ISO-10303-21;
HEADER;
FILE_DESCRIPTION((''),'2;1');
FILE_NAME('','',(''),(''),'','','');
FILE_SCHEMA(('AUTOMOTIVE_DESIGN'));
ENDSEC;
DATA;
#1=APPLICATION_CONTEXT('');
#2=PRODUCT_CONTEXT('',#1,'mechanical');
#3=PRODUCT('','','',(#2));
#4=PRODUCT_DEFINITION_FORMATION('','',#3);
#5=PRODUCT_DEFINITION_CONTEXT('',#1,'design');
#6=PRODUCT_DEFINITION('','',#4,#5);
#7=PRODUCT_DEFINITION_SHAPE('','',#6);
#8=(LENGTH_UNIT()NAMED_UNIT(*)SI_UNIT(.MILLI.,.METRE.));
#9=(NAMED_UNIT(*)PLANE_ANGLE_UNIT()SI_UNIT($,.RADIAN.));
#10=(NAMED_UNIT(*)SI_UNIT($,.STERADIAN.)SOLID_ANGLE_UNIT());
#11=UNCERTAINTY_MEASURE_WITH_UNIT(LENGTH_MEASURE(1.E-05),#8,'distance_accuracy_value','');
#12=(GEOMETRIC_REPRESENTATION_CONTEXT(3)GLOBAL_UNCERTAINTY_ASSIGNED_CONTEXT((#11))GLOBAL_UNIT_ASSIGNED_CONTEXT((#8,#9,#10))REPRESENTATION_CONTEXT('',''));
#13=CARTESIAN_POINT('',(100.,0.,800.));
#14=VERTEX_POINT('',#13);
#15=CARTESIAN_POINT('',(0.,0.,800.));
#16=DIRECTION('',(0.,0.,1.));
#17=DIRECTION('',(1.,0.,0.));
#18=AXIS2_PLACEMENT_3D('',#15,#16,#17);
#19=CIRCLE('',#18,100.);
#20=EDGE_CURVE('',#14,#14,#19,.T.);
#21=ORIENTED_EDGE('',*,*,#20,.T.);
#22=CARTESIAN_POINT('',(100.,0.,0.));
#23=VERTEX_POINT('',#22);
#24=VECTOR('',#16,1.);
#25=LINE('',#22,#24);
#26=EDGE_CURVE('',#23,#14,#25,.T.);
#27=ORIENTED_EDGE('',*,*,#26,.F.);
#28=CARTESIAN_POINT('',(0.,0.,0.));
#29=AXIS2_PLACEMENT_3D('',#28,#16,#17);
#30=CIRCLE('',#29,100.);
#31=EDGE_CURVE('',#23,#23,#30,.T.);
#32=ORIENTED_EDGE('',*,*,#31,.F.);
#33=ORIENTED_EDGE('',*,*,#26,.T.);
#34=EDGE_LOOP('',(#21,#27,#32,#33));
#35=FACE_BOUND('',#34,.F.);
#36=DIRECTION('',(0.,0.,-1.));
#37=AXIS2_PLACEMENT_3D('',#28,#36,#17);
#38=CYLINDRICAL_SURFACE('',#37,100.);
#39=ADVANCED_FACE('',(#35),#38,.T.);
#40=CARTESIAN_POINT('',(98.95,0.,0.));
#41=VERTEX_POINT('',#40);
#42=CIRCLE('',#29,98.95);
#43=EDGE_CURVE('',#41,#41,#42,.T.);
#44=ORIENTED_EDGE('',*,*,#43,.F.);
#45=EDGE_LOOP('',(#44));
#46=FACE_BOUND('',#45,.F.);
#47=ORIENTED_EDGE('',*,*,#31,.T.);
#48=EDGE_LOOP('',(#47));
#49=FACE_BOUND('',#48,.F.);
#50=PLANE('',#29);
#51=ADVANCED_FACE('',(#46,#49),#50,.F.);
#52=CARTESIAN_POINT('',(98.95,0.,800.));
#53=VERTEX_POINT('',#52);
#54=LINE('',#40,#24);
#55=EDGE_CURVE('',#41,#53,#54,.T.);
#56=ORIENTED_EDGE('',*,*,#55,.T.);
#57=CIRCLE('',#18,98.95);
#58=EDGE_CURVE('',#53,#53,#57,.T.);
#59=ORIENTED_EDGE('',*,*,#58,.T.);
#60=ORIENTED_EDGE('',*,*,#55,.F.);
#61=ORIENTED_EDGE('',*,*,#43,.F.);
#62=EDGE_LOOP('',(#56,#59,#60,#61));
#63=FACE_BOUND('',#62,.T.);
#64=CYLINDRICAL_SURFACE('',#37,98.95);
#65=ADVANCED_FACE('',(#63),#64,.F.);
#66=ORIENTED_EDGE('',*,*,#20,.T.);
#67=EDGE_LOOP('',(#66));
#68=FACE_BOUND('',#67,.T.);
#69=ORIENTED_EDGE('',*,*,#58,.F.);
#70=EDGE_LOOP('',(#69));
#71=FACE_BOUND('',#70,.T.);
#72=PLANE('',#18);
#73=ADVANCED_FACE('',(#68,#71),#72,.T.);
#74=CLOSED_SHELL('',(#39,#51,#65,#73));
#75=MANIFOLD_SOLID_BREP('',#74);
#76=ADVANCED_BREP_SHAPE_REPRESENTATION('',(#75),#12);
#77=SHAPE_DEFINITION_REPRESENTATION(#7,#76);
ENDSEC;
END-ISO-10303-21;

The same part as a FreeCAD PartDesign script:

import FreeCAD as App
import Part
import Sketcher
from FreeCAD import Vector

doc = App.newDocument("Part")
body = doc.addObject("PartDesign::Body", "Body")

sketch1 = body.newObject("Sketcher::SketchObject", "Sketch")
sketch1.AttachmentSupport = (doc.getObject("XY_Plane"), [""])
sketch1.MapMode = "FlatFace"
sketch1.addGeometry([
    Part.Circle(Vector(0, 0, 0), Vector(0, 0, 1), 100),
    Part.Circle(Vector(0, 0, 0), Vector(0, 0, 1), 99),
], False)
sketch1.addConstraint([
    Sketcher.Constraint("Coincident", 0, 3, -1, 1),
    Sketcher.Constraint("Coincident", 1, 3, -1, 1),
    Sketcher.Constraint("Diameter", 0, 200.0),
    Sketcher.Constraint("Diameter", 1, 197.9),
])
pad1 = body.newObject("PartDesign::Pad", "Pad")
pad1.Profile = sketch1
pad1.Length = 800

doc.recompute()
